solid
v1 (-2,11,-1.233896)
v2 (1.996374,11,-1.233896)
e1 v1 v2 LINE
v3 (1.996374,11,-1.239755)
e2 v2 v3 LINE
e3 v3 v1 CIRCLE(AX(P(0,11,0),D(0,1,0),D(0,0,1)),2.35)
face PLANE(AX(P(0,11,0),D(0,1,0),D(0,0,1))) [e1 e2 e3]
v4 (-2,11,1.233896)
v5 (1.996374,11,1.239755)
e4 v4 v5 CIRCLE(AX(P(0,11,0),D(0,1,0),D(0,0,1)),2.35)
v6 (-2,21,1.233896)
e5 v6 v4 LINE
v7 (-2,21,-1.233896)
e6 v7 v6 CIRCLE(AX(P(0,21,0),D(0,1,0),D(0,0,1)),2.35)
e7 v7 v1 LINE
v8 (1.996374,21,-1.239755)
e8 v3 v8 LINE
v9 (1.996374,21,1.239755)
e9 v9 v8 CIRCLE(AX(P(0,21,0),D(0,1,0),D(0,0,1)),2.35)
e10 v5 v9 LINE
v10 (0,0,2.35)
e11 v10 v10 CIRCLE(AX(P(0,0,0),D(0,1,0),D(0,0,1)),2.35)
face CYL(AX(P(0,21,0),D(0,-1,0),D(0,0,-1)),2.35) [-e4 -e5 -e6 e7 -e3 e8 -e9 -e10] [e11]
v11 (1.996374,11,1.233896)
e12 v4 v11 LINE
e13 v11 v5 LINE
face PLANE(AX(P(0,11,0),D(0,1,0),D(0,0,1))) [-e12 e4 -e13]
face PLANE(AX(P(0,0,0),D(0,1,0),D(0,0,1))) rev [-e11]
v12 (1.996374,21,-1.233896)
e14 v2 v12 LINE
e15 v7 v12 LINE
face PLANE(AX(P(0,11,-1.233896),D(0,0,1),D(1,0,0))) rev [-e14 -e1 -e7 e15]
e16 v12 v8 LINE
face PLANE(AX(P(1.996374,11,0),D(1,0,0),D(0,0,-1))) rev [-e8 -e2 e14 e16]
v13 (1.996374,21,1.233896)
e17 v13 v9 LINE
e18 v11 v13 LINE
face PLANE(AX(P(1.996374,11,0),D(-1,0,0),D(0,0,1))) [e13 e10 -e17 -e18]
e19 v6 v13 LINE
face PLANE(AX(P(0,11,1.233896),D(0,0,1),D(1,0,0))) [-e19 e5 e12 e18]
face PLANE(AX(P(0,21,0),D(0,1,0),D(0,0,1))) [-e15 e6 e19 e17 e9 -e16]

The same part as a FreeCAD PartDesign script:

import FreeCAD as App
import Part
import Sketcher

doc = App.newDocument("Part")
params = doc.addObject("Spreadsheet::Sheet", "Params")
for row, (alias, value) in enumerate([
    ("sketch1_diameter", "4.7 mm"),
    ("pad1_length", "21 mm"),
    ("sketch2_width", "4 mm"),
    ("pocket1_length", "10 mm"),
], start=1):
    params.set(f"A{row}", alias)
    params.set(f"B{row}", "=" + value)
    params.setAlias(f"B{row}", alias)

body = doc.addObject("PartDesign::Body", "Body")

# Sketch on XZ plane
sketch1 = doc.addObject("Sketcher::SketchObject", "Sketch")
body.addObject(sketch1)
sketch1.AttachmentSupport = (doc.XZ_Plane, [""])
sketch1.MapMode = "FlatFace"
sketch1.addGeometry(Part.Circle(App.Vector(0, 0, 0), App.Vector(0, 0, 1), 2.35), False)
sketch1.addConstraint([
    Sketcher.Constraint("Coincident", 0, 3, -1, 1),
    Sketcher.Constraint("Diameter", 0, 4.7),
])
sketch1.setExpression("Constraints[1]", "Params.sketch1_diameter")
pad1 = doc.addObject("PartDesign::Pad", "Pad")
body.addObject(pad1)
pad1.Profile = sketch1
pad1.setExpression("Length", "Params.pad1_length")
pad1.Reversed = True

# Sketch on XZ plane
sketch2 = doc.addObject("Sketcher::SketchObject", "Sketch001")
body.addObject(sketch2)
sketch2.AttachmentSupport = (doc.XZ_Plane, [""])
sketch2.MapMode = "FlatFace"
sketch2.AttachmentOffset = App.Placement(App.Vector(0, 0, -21), App.Rotation())
sketch2.addGeometry([
    Part.LineSegment(App.Vector(-2.003626, -2.467115, 0), App.Vector(-2.003626, -1.233896, 0)),  # 0
    Part.LineSegment(App.Vector(-2.003626, -1.233896, 0), App.Vector(1.996374, -1.233896, 0)),  # 1
    Part.LineSegment(App.Vector(1.996374, -1.233896, 0), App.Vector(1.996374, -2.467115, 0)),  # 2
    Part.LineSegment(App.Vector(1.996374, -2.467115, 0), App.Vector(-2.003626, -2.467115, 0)),  # 3
    Part.LineSegment(App.Vector(-2.003626, 1.233896, 0), App.Vector(-2.003626, 2.438324, 0)),  # 4
    Part.LineSegment(App.Vector(-2.003626, 2.438324, 0), App.Vector(1.996374, 2.438324, 0)),  # 5
    Part.LineSegment(App.Vector(1.996374, 2.438324, 0), App.Vector(1.996374, 1.233896, 0)),  # 6
    Part.LineSegment(App.Vector(1.996374, 1.233896, 0), App.Vector(-2.003626, 1.233896, 0)),  # 7
], False)
sketch2.addConstraint([
    Sketcher.Constraint("Coincident", 0, 2, 1, 1),
    Sketcher.Constraint("Coincident", 1, 2, 2, 1),
    Sketcher.Constraint("Coincident", 2, 2, 3, 1),
    Sketcher.Constraint("Coincident", 3, 2, 0, 1),
    Sketcher.Constraint("Coincident", 4, 2, 5, 1),
    Sketcher.Constraint("Coincident", 5, 2, 6, 1),
    Sketcher.Constraint("Coincident", 6, 2, 7, 1),
    Sketcher.Constraint("Coincident", 7, 2, 4, 1),
    Sketcher.Constraint("Vertical", 0),
    Sketcher.Constraint("Horizontal", 1),
    Sketcher.Constraint("Vertical", 2),
    Sketcher.Constraint("Horizontal", 3),
    Sketcher.Constraint("Vertical", 4),
    Sketcher.Constraint("Horizontal", 5),
    Sketcher.Constraint("Vertical", 6),
    Sketcher.Constraint("Horizontal", 7),
    Sketcher.Constraint("Symmetric", 1, 2, 6, 2, -1),
    Sketcher.Constraint("Vertical", 3, 2, 4, 2),
    Sketcher.Constraint("DistanceX", 1, 1, 1, 2, 4.0),
    Sketcher.Constraint("DistanceY", 0, 1, 0, 2, 1.233219),
    Sketcher.Constraint("DistanceY", 4, 1, 4, 2, 1.204428),
    Sketcher.Constraint("DistanceY", 0, 2, 4, 2, 3.672221),
    Sketcher.Constraint("DistanceX", 0, 2, -1, 1, 2.003626),
])
sketch2.setExpression("Constraints[18]", "Params.sketch2_width")
pocket1 = doc.addObject("PartDesign::Pocket", "Pocket")
body.addObject(pocket1)
pocket1.Profile = sketch2
pocket1.setExpression("Length", "Params.pocket1_length")
pocket1.Reversed = True

doc.recompute()
